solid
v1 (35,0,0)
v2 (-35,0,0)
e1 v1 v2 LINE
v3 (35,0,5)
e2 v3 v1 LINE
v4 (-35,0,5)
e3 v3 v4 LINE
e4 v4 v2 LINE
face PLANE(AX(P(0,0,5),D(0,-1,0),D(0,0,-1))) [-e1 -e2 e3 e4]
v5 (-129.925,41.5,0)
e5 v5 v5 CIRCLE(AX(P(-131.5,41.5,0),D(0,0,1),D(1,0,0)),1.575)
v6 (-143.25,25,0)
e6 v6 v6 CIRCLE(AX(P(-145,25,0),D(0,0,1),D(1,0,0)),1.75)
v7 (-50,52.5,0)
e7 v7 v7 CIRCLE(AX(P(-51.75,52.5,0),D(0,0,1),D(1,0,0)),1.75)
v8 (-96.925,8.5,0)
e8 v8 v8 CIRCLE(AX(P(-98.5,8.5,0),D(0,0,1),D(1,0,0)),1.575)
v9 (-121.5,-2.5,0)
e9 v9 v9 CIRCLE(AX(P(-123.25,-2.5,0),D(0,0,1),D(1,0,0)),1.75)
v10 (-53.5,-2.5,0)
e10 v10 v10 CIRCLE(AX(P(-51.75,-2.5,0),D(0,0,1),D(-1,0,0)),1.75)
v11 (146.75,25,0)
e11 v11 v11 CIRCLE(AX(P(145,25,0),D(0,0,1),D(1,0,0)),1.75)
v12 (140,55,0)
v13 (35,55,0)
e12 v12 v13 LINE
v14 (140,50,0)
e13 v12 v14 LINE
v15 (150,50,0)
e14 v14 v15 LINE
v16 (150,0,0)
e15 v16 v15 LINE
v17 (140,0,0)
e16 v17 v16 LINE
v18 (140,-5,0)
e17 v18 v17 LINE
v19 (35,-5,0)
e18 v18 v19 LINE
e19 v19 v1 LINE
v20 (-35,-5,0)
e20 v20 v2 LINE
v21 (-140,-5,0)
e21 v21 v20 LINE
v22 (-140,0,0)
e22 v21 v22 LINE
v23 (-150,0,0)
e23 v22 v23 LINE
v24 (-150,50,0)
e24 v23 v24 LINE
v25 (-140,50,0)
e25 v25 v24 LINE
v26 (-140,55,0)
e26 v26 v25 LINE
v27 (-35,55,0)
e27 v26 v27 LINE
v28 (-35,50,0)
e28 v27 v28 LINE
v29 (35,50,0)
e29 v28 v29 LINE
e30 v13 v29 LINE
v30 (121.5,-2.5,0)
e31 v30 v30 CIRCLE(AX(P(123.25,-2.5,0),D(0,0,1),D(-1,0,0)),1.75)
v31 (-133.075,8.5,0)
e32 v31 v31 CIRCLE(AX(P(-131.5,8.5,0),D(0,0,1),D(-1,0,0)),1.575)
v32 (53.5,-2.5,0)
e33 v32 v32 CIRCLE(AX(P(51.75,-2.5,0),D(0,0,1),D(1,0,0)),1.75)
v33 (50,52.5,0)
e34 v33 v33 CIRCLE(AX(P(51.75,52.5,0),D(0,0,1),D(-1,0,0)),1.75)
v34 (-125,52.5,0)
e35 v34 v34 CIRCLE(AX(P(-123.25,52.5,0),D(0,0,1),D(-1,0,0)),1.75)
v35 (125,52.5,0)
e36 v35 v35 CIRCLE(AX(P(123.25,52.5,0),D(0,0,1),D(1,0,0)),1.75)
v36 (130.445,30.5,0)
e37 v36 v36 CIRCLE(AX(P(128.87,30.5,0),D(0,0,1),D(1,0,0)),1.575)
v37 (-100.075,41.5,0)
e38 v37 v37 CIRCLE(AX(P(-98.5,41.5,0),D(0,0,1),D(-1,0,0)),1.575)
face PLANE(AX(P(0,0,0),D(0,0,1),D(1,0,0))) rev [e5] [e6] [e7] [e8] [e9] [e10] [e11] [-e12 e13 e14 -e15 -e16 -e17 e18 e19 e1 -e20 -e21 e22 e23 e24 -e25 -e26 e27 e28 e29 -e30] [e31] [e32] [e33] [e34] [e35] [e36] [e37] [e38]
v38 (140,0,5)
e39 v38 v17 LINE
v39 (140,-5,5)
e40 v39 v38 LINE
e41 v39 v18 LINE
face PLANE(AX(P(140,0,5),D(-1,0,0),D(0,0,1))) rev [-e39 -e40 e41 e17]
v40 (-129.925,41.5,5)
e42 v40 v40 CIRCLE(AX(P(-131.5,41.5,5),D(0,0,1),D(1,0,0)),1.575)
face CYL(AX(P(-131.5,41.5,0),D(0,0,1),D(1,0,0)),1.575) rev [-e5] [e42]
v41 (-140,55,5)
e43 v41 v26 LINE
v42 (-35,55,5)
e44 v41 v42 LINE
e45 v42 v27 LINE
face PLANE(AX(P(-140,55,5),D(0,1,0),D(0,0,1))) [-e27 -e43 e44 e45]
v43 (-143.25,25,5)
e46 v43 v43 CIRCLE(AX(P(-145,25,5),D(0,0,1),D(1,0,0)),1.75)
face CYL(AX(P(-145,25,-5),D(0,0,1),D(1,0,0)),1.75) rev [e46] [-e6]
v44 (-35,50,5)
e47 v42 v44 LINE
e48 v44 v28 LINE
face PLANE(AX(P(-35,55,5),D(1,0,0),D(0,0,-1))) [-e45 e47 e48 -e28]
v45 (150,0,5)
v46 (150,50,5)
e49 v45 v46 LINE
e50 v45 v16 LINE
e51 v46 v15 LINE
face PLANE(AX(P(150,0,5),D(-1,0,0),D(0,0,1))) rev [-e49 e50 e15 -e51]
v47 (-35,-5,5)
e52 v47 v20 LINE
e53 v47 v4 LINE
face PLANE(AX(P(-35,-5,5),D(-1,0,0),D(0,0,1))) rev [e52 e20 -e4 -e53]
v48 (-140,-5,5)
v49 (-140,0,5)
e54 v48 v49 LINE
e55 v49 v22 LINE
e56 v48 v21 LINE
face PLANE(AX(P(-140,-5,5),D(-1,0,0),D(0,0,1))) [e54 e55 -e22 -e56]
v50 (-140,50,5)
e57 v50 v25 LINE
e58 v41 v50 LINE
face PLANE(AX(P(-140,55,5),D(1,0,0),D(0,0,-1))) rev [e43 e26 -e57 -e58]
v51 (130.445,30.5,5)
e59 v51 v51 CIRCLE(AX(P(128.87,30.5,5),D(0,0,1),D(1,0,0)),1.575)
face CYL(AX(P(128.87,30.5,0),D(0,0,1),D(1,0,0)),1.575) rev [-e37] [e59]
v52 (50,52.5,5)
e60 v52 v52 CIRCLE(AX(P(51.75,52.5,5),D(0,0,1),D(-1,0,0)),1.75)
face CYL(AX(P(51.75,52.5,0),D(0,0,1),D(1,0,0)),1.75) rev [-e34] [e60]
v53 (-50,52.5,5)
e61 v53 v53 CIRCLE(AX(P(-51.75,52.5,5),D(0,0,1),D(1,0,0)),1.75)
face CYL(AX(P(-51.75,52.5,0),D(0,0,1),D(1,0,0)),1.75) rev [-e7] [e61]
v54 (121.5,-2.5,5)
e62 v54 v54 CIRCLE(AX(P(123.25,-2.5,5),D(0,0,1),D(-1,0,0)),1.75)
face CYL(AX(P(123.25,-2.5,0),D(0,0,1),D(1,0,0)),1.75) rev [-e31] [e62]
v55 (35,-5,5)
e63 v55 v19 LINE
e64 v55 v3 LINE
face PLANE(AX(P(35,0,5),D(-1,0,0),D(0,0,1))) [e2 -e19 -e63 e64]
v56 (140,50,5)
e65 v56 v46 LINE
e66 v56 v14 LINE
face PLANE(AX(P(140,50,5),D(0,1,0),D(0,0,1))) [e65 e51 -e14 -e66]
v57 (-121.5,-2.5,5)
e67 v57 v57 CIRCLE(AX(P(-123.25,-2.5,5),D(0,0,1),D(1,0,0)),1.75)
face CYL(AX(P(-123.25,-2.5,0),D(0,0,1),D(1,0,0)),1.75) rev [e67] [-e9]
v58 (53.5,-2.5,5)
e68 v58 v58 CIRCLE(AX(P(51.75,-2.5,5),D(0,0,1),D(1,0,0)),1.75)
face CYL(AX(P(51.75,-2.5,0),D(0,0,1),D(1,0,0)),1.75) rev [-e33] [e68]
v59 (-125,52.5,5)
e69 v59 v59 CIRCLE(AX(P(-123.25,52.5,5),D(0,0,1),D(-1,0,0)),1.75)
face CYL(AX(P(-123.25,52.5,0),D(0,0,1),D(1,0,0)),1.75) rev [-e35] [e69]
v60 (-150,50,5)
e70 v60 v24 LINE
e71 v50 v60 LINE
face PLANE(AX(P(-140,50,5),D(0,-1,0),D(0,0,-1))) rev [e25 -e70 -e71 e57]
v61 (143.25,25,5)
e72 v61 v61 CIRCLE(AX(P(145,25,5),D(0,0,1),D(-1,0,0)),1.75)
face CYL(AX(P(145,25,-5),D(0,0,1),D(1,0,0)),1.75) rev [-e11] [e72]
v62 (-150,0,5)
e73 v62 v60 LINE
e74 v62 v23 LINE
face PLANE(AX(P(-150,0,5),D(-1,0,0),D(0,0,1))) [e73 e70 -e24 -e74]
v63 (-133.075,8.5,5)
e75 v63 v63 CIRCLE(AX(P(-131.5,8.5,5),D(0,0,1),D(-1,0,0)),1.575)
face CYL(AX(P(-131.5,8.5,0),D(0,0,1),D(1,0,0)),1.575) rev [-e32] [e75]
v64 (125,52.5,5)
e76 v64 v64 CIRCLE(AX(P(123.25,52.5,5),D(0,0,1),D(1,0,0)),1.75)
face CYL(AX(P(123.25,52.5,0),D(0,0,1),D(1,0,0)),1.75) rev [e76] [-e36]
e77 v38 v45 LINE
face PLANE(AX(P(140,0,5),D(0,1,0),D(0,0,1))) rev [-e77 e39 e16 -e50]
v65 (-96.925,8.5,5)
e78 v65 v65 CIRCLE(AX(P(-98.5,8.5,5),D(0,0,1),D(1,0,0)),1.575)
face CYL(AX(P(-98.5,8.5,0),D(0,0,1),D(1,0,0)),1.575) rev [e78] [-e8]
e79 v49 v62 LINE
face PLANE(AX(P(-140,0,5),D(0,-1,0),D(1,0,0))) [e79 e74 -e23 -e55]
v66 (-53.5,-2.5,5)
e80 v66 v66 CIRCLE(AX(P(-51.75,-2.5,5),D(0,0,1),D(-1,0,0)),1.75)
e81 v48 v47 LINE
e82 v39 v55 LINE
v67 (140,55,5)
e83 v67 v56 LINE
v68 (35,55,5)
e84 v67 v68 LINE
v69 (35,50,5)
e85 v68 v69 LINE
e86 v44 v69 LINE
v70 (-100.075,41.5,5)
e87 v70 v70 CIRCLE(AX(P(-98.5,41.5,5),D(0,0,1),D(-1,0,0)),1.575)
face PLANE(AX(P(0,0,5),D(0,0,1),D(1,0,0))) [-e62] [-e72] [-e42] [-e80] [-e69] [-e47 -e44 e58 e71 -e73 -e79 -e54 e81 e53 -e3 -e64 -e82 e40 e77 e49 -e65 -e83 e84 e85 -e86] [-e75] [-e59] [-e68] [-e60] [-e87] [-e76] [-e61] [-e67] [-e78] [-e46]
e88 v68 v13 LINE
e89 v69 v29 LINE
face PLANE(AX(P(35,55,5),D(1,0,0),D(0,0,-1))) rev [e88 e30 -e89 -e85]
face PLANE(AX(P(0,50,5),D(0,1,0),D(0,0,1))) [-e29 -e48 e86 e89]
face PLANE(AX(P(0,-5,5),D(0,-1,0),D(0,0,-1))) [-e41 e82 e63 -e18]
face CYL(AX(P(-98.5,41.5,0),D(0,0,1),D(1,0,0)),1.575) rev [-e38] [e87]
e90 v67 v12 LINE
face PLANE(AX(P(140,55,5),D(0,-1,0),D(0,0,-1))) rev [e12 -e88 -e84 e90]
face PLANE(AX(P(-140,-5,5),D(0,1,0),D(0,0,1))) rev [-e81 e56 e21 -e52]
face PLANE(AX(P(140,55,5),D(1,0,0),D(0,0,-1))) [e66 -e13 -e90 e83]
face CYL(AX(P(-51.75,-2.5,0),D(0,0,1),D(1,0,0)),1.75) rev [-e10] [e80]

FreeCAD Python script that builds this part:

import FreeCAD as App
import Part
import Sketcher
from FreeCAD import Vector
Q = App.Units.Quantity


def add_polygon(sketch, points):
    """Adds a closed chain of lines whose ends are joined by coincident constraints."""
    first, n = sketch.GeometryCount, len(points)
    for a, b in zip(points, points[1:] + points[:1]):
        sketch.addGeometry(Part.LineSegment(App.Vector(*a, 0), App.Vector(*b, 0)), False)
    for i in range(n):
        sketch.addConstraint(Sketcher.Constraint("Coincident", first + i, 2, first + (i + 1) % n, 1))

doc = App.newDocument("Part")
body = doc.addObject("PartDesign::Body", "Body")

# Sketch on XY plane
sketch1 = doc.addObject("Sketcher::SketchObject", "Sketch")
body.addObject(sketch1)
sketch1.AttachmentSupport = (doc.XY_Plane, [""])
sketch1.MapMode = "FlatFace"
add_polygon(sketch1, [(-140, -5), (-35, -5), (-35, 0), (35, 0), (35, -5), (140, -5), (140, 0), (150, 0), (150, 50), (140, 50), (140, 55), (35, 55), (35, 50), (-35, 50), (-35, 55), (-140, 55), (-140, 50), (-150, 50), (-150, 0), (-140, 0)])  # lines 0-19
sketch1.addConstraint([
    Sketcher.Constraint("Horizontal", 0),
    Sketcher.Constraint("Vertical", 1),
    Sketcher.Constraint("Horizontal", 2),
    Sketcher.Constraint("Vertical", 3),
    Sketcher.Constraint("Horizontal", 4),
    Sketcher.Constraint("Vertical", 5),
    Sketcher.Constraint("Horizontal", 6),
    Sketcher.Constraint("Vertical", 7),
    Sketcher.Constraint("Horizontal", 8),
    Sketcher.Constraint("Vertical", 9),
    Sketcher.Constraint("Horizontal", 10),
    Sketcher.Constraint("Vertical", 11),
    Sketcher.Constraint("Horizontal", 12),
    Sketcher.Constraint("Vertical", 13),
    Sketcher.Constraint("Horizontal", 14),
    Sketcher.Constraint("Vertical", 15),
    Sketcher.Constraint("Horizontal", 16),
    Sketcher.Constraint("Vertical", 17),
    Sketcher.Constraint("Horizontal", 18),
    Sketcher.Constraint("Vertical", 19),
    Sketcher.Constraint("Symmetric", 1, 2, 2, 2, -1, 1),
    Sketcher.Constraint("Symmetric", 6, 2, 17, 2, -1, 1),
    Sketcher.Constraint("Symmetric", 10, 2, 13, 2, -2),
    Sketcher.Constraint("Symmetric", 8, 2, 15, 2, -2),
    Sketcher.Constraint("Symmetric", 5, 2, 18, 2, -2),
    Sketcher.Constraint("Horizontal", 0, 2, 3, 2),
    Sketcher.Constraint("Horizontal", 8, 2, 11, 2),
    Sketcher.Constraint("Vertical", 5, 2, 8, 2),
    Sketcher.Constraint("Vertical", 3, 2, 10, 2),
    Sketcher.Constraint("Equal", 5, 9),
    Sketcher.Constraint("DistanceX", 0, 1, 0, 2, Q("105 mm")),
    Sketcher.Constraint("DistanceX", 2, 1, 2, 2, Q("70 mm")),
    Sketcher.Constraint("DistanceX", 6, 1, 6, 2, Q("10 mm")),
    Sketcher.Constraint("DistanceY", 1, 1, 1, 2, Q("5 mm")),
    Sketcher.Constraint("DistanceY", 7, 1, 7, 2, Q("50 mm")),
])
pad1 = doc.addObject("PartDesign::Pad", "Pad")
body.addObject(pad1)
pad1.Profile = sketch1
pad1.Length = 5

# Sketch on XY plane
sketch2 = doc.addObject("Sketcher::SketchObject", "Sketch001")
body.addObject(sketch2)
sketch2.AttachmentSupport = (doc.XY_Plane, [""])
sketch2.MapMode = "FlatFace"
sketch2.AttachmentOffset = App.Placement(Vector(0, 0, 5), App.Rotation())
sketch2.addGeometry([
    Part.Circle(Vector(-123.25, -2.5, 0), Vector(0, 0, 1), 1.75),  # 0
    Part.Circle(Vector(-51.75, -2.5, 0), Vector(0, 0, 1), 1.75),  # 1
    Part.Circle(Vector(51.75, -2.5, 0), Vector(0, 0, 1), 1.75),  # 2
    Part.Circle(Vector(123.25, -2.5, 0), Vector(0, 0, 1), 1.75),  # 3
    Part.Circle(Vector(123.25, 52.5, 0), Vector(0, 0, 1), 1.75),  # 4
    Part.Circle(Vector(51.75, 52.5, 0), Vector(0, 0, 1), 1.75),  # 5
    Part.Circle(Vector(-51.75, 52.5, 0), Vector(0, 0, 1), 1.75),  # 6
    Part.Circle(Vector(-123.25, 52.5, 0), Vector(0, 0, 1), 1.75),  # 7
], False)
sketch2.addConstraint([
    Sketcher.Constraint("Equal", 0, 1),
    Sketcher.Constraint("Equal", 1, 2),
    Sketcher.Constraint("Equal", 2, 3),
    Sketcher.Constraint("Equal", 3, 4),
    Sketcher.Constraint("Equal", 4, 5),
    Sketcher.Constraint("Equal", 5, 6),
    Sketcher.Constraint("Equal", 6, 7),
    Sketcher.Constraint("Symmetric", 1, 3, 2, 3, -2),
    Sketcher.Constraint("Symmetric", 0, 3, 3, 3, -2),
    Sketcher.Constraint("Symmetric", 5, 3, 6, 3, -2),
    Sketcher.Constraint("Symmetric", 4, 3, 7, 3, -2),
    Sketcher.Constraint("Horizontal", 0, 3, 1, 3),
    Sketcher.Constraint("Horizontal", 4, 3, 5, 3),
    Sketcher.Constraint("Vertical", 3, 3, 4, 3),
    Sketcher.Constraint("Vertical", 2, 3, 5, 3),
    Sketcher.Constraint("Diameter", 0, Q("3.5 mm")),
    Sketcher.Constraint("DistanceX", 0, 3, 2, 3, Q("175 mm")),
    Sketcher.Constraint("DistanceY", 3, 3, 4, 3, Q("55 mm")),
    Sketcher.Constraint("DistanceY", 0, 3, -1, 1, Q("2.5 mm")),
    Sketcher.Constraint("DistanceX", 0, 3, 1, 3, Q("71.5 mm")),
])
pocket1 = doc.addObject("PartDesign::Pocket", "Pocket")
body.addObject(pocket1)
pocket1.Profile = sketch2
pocket1.Length = 5

# Sketch on XY plane
sketch3 = doc.addObject("Sketcher::SketchObject", "Sketch002")
body.addObject(sketch3)
sketch3.AttachmentSupport = (doc.XY_Plane, [""])
sketch3.MapMode = "FlatFace"
sketch3.AttachmentOffset = App.Placement(Vector(0, 0, 5), App.Rotation())
sketch3.addGeometry([
    Part.Circle(Vector(-145, 25, 0), Vector(0, 0, 1), 1.75),
    Part.Circle(Vector(145, 25, 0), Vector(0, 0, 1), 1.75),
], False)
sketch3.addConstraint([
    Sketcher.Constraint("Equal", 0, 1),
    Sketcher.Constraint("Symmetric", 0, 3, 1, 3, -2),
    Sketcher.Constraint("Diameter", 0, Q("3.5 mm")),
    Sketcher.Constraint("DistanceX", 0, 3, -1, 1, Q("145 mm")),
    Sketcher.Constraint("DistanceY", -1, 1, 0, 3, Q("25 mm")),
])
pocket2 = doc.addObject("PartDesign::Pocket", "Pocket001")
body.addObject(pocket2)
pocket2.Profile = sketch3
pocket2.Length = 10

# Sketch on XY plane
sketch4 = doc.addObject("Sketcher::SketchObject", "Sketch003")
body.addObject(sketch4)
sketch4.AttachmentSupport = (doc.XY_Plane, [""])
sketch4.MapMode = "FlatFace"
sketch4.AttachmentOffset = App.Placement(Vector(0, 0, 5), App.Rotation())
sketch4.addGeometry([
    Part.Circle(Vector(-131.5, 41.5, 0), Vector(0, 0, 1), 1.575),  # 0
    Part.Circle(Vector(-98.5, 41.5, 0), Vector(0, 0, 1), 1.575),  # 1
    Part.Circle(Vector(-98.5, 8.5, 0), Vector(0, 0, 1), 1.575),  # 2
    Part.Circle(Vector(-131.5, 8.5, 0), Vector(0, 0, 1), 1.575),  # 3
    Part.Circle(Vector(128.87, 30.5, 0), Vector(0, 0, 1), 1.575),  # 4
], False)
sketch4.addConstraint([
    Sketcher.Constraint("Equal", 0, 1),
    Sketcher.Constraint("Equal", 1, 2),
    Sketcher.Constraint("Equal", 2, 3),
    Sketcher.Constraint("Equal", 3, 4),
    Sketcher.Constraint("Horizontal", 0, 3, 1, 3),
    Sketcher.Constraint("Horizontal", 2, 3, 3, 3),
    Sketcher.Constraint("Vertical", 1, 3, 2, 3),
    Sketcher.Constraint("Vertical", 0, 3, 3, 3),
    Sketcher.Constraint("Diameter", 0, Q("3.15 mm")),
    Sketcher.Constraint("DistanceX", 0, 3, 1, 3, Q("33 mm")),
    Sketcher.Constraint("DistanceY", 2, 3, 1, 3, Q("33 mm")),
    Sketcher.Constraint("DistanceY", 4, 3, 1, 3, Q("11 mm")),
    Sketcher.Constraint("DistanceX", 0, 3, -1, 1, Q("131.5 mm")),
    Sketcher.Constraint("DistanceY", -1, 1, 0, 3, Q("41.5 mm")),
    Sketcher.Constraint("DistanceX", -1, 1, 4, 3, Q("128.87 mm")),
])
pocket3 = doc.addObject("PartDesign::Pocket", "Pocket002")
body.addObject(pocket3)
pocket3.Profile = sketch4
pocket3.Type = "ThroughAll"

doc.recompute()
